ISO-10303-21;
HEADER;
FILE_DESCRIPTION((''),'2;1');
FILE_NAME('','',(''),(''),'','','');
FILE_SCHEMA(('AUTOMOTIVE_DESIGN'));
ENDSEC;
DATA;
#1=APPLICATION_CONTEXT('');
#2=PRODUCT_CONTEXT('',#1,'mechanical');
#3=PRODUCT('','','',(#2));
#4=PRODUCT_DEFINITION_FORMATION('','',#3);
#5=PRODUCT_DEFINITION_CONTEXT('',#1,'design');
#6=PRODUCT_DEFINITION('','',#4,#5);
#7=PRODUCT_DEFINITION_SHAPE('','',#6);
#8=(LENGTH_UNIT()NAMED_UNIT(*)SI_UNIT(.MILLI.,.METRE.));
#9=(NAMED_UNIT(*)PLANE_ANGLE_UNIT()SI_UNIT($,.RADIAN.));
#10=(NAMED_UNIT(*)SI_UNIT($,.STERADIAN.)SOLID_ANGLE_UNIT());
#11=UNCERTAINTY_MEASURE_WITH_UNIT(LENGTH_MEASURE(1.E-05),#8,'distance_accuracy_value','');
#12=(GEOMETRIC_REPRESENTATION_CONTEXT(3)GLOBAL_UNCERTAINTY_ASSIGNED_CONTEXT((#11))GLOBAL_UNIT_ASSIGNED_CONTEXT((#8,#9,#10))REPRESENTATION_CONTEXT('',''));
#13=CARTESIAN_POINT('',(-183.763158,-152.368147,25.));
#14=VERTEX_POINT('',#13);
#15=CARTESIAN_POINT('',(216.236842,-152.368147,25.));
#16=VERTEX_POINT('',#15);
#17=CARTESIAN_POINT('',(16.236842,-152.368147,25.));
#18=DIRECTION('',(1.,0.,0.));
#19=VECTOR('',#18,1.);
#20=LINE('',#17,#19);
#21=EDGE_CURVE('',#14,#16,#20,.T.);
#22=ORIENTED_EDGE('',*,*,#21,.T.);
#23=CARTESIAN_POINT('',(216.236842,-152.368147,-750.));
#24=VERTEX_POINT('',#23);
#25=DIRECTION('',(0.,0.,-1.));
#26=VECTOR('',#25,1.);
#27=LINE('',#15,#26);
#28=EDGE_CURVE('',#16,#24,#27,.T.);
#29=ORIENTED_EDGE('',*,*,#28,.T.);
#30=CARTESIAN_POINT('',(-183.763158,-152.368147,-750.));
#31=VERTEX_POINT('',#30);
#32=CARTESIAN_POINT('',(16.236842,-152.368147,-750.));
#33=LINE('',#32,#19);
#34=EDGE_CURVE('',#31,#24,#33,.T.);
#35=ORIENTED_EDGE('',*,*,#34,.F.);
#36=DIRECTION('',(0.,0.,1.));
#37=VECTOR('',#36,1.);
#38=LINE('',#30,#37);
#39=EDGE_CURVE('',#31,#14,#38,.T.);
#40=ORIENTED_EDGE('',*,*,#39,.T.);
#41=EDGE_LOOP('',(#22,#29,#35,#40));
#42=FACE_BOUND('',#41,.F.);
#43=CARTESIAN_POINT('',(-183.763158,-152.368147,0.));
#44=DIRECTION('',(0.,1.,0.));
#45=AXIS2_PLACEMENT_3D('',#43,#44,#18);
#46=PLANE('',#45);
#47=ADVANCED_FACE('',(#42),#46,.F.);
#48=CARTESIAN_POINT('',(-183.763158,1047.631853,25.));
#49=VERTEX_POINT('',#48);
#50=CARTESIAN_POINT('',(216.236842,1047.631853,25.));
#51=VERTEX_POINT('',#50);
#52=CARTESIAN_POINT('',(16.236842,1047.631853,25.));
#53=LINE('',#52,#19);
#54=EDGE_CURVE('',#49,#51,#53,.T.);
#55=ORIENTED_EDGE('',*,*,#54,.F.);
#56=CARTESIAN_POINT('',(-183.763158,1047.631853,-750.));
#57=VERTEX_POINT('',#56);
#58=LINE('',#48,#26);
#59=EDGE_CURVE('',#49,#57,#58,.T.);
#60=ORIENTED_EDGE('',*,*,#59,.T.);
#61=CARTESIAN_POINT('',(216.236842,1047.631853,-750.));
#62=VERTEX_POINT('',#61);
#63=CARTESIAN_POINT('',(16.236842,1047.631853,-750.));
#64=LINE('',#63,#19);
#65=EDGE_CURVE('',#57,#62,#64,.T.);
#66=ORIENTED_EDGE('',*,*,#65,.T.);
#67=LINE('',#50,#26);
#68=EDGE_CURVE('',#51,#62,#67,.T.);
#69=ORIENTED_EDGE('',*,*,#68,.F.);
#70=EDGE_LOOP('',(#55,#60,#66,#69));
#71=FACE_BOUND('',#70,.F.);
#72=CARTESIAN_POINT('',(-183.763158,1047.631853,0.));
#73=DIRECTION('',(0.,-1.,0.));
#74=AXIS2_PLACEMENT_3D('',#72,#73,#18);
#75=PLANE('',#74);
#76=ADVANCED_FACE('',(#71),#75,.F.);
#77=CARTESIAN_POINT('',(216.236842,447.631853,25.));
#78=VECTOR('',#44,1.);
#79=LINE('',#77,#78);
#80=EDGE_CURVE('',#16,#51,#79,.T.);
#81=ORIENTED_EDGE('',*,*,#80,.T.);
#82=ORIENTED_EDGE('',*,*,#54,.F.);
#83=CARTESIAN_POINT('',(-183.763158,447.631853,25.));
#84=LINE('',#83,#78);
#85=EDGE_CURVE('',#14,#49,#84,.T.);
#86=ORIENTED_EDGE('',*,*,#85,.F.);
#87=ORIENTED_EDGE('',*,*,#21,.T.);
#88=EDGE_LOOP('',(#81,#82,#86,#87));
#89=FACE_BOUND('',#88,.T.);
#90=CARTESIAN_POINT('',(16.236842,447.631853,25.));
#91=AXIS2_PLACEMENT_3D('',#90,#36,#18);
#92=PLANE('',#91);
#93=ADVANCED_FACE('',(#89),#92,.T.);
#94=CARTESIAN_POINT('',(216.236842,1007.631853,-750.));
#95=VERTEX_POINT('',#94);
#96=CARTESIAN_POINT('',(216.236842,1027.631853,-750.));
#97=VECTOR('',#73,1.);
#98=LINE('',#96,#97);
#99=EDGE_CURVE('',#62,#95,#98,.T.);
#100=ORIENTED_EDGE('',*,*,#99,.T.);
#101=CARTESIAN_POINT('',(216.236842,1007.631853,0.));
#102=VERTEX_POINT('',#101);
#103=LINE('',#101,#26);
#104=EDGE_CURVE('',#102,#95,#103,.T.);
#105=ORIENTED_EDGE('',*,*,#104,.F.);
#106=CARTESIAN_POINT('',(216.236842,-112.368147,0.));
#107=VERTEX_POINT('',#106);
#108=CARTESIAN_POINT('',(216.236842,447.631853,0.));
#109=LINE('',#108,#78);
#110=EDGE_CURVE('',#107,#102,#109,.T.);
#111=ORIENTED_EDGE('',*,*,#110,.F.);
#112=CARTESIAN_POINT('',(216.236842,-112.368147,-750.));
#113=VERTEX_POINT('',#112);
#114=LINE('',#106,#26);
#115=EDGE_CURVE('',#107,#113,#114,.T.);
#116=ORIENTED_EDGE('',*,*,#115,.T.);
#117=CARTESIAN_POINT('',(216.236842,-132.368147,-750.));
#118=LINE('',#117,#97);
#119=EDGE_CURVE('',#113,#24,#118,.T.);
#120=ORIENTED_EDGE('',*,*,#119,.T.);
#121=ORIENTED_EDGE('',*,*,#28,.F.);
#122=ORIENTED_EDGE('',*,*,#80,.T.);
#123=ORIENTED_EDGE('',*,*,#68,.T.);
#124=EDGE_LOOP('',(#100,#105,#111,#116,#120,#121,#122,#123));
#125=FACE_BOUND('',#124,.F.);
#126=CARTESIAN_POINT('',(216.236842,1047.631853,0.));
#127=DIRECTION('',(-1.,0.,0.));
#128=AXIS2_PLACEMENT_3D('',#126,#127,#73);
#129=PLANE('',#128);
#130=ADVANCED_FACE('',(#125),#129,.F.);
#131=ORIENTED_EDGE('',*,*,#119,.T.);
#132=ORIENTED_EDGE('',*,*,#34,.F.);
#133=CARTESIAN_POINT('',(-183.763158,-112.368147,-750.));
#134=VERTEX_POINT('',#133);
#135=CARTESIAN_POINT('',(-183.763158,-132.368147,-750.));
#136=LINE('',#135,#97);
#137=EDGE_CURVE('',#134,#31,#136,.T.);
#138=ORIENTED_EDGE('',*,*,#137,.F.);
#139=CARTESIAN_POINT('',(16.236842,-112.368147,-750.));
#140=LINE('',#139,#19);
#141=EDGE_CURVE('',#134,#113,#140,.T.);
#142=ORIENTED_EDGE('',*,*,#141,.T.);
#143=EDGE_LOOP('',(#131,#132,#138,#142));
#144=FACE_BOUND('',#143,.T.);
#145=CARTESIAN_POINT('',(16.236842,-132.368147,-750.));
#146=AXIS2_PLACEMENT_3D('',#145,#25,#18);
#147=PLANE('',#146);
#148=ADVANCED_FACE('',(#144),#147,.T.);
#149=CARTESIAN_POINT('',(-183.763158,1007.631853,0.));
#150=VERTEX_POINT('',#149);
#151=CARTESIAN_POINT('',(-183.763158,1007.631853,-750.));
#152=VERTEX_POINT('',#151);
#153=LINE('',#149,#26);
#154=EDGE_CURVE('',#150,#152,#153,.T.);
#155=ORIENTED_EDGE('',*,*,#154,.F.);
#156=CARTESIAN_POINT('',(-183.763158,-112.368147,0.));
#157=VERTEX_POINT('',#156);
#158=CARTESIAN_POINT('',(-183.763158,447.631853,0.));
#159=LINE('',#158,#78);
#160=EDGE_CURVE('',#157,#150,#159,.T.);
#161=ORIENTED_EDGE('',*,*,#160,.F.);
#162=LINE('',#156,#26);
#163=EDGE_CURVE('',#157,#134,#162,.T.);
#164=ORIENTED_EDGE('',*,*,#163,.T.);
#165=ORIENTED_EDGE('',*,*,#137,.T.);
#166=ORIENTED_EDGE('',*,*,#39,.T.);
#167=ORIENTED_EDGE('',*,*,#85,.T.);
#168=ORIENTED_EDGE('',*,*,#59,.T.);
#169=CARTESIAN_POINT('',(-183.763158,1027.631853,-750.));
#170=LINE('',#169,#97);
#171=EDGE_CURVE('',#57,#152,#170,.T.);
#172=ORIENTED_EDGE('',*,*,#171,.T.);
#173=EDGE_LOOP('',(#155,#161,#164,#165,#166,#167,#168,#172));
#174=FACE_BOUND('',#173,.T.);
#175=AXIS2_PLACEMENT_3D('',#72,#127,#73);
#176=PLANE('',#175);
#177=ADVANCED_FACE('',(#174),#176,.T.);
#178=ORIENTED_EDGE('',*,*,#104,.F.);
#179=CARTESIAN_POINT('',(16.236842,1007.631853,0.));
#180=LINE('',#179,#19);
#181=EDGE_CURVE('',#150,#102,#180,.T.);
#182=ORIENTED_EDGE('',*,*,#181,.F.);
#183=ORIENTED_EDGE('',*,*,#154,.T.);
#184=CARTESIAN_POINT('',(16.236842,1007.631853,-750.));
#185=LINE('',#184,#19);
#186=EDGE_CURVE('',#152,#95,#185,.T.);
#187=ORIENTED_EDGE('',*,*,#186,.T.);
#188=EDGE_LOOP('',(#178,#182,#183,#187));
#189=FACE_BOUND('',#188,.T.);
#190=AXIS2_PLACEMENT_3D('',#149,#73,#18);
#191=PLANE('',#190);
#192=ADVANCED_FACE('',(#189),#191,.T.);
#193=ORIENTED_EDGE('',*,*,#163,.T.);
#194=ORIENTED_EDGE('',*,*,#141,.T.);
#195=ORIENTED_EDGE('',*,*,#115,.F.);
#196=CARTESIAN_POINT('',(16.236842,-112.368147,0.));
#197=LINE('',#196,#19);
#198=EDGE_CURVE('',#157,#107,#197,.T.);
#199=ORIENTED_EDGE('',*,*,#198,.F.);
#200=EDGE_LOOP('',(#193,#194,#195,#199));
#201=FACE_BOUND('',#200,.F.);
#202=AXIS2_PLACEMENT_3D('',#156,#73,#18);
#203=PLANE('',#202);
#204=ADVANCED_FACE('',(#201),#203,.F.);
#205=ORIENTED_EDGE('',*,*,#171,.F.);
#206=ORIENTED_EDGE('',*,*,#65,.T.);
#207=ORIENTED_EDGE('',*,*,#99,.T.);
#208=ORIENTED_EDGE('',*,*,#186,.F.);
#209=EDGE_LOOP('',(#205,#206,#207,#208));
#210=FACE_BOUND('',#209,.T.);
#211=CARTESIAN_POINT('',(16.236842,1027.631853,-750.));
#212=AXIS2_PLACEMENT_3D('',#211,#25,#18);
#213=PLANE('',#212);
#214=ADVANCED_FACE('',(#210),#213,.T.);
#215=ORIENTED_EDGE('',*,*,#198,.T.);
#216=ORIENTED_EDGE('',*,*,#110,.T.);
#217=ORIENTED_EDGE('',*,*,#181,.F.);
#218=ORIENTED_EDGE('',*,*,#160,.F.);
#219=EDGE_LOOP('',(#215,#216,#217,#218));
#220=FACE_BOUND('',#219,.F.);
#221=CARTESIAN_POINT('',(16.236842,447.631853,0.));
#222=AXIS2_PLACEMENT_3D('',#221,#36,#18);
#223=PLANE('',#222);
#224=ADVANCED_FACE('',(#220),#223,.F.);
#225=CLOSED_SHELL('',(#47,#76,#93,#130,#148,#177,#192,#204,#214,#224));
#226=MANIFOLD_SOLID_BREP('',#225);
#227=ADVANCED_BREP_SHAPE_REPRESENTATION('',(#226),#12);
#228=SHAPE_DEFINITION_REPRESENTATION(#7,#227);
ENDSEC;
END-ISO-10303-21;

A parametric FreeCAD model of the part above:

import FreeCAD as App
import Part
import Sketcher
Q = App.Units.Quantity

doc = App.newDocument("Part")
body = doc.addObject("PartDesign::Body", "Body")

sketch1 = doc.addObject("Sketcher::SketchObject", "Sketch")
body.addObject(sketch1)
sketch1.AttachmentSupport = (doc.XY_Plane, [""])
sketch1.MapMode = "FlatFace"
sketch1.addGeometry([
    Part.LineSegment(App.Vector(-184, 1048, 0), App.Vector(-184, -152, 0)),
    Part.LineSegment(App.Vector(-184, -152, 0), App.Vector(216, -152, 0)),
    Part.LineSegment(App.Vector(216, -152, 0), App.Vector(216, 1048, 0)),
    Part.LineSegment(App.Vector(216, 1048, 0), App.Vector(-184, 1048, 0)),
], False)
sketch1.addConstraint([
    Sketcher.Constraint("Coincident", 0, 2, 1, 1),
    Sketcher.Constraint("Coincident", 1, 2, 2, 1),
    Sketcher.Constraint("Coincident", 2, 2, 3, 1),
    Sketcher.Constraint("Coincident", 3, 2, 0, 1),
    Sketcher.Constraint("Vertical", 0),
    Sketcher.Constraint("Horizontal", 1),
    Sketcher.Constraint("Vertical", 2),
    Sketcher.Constraint("Horizontal", 3),
    Sketcher.Constraint("DistanceX", 1, 1, 1, 2, Q("400 mm")),
    Sketcher.Constraint("DistanceY", 0, 2, 0, 1, Q("1200 mm")),
    Sketcher.Constraint("DistanceX", 0, 2, -1, 1, Q("183.763158 mm")),
    Sketcher.Constraint("DistanceY", 0, 2, -1, 1, Q("152.368147 mm")),
])
pad1 = doc.addObject("PartDesign::Pad", "Pad")
body.addObject(pad1)
pad1.Profile = sketch1
pad1.Length = 25

sketch2 = doc.addObject("Sketcher::SketchObject", "Sketch001")
body.addObject(sketch2)
sketch2.AttachmentSupport = (doc.XY_Plane, [""])
sketch2.MapMode = "FlatFace"
sketch2.addGeometry([
    Part.LineSegment(App.Vector(-184, 1008, 0), App.Vector(-184, 1048, 0)),
    Part.LineSegment(App.Vector(-184, 1048, 0), App.Vector(216, 1048, 0)),
    Part.LineSegment(App.Vector(216, 1048, 0), App.Vector(216, 1008, 0)),
    Part.LineSegment(App.Vector(216, 1008, 0), App.Vector(-184, 1008, 0)),
    Part.LineSegment(App.Vector(-184, -152, 0), App.Vector(-184, -112, 0)),
    Part.LineSegment(App.Vector(-184, -112, 0), App.Vector(216, -112, 0)),
    Part.LineSegment(App.Vector(216, -112, 0), App.Vector(216, -152, 0)),
    Part.LineSegment(App.Vector(216, -152, 0), App.Vector(-184, -152, 0)),
], False)
sketch2.addConstraint([
    Sketcher.Constraint("Coincident", 0, 2, 1, 1),
    Sketcher.Constraint("Coincident", 1, 2, 2, 1),
    Sketcher.Constraint("Coincident", 2, 2, 3, 1),
    Sketcher.Constraint("Coincident", 3, 2, 0, 1),
    Sketcher.Constraint("Coincident", 4, 2, 5, 1),
    Sketcher.Constraint("Coincident", 5, 2, 6, 1),
    Sketcher.Constraint("Coincident", 6, 2, 7, 1),
    Sketcher.Constraint("Coincident", 7, 2, 4, 1),
    Sketcher.Constraint("Vertical", 0),
    Sketcher.Constraint("Horizontal", 1),
    Sketcher.Constraint("Vertical", 2),
    Sketcher.Constraint("Horizontal", 3),
    Sketcher.Constraint("Vertical", 4),
    Sketcher.Constraint("Horizontal", 5),
    Sketcher.Constraint("Vertical", 6),
    Sketcher.Constraint("Horizontal", 7),
    Sketcher.Constraint("Vertical", 3, 2, 4, 2),
    Sketcher.Constraint("Vertical", 2, 2, 5, 2),
    Sketcher.Constraint("Equal", 2, 4),
    Sketcher.Constraint("DistanceX", 1, 1, 1, 2, Q("400 mm")),
    Sketcher.Constraint("DistanceY", 0, 1, 0, 2, Q("40 mm")),
    Sketcher.Constraint("DistanceY", 4, 2, 3, 2, Q("1120 mm")),
    Sketcher.Constraint("DistanceX", 0, 2, -1, 1, Q("183.763158 mm")),
    Sketcher.Constraint("DistanceY", -1, 1, 0, 2, Q("1047.631853 mm")),
])
pad2 = doc.addObject("PartDesign::Pad", "Pad001")
body.addObject(pad2)
pad2.Profile = sketch2
pad2.Length = 750
pad2.Reversed = True

doc.recompute()
